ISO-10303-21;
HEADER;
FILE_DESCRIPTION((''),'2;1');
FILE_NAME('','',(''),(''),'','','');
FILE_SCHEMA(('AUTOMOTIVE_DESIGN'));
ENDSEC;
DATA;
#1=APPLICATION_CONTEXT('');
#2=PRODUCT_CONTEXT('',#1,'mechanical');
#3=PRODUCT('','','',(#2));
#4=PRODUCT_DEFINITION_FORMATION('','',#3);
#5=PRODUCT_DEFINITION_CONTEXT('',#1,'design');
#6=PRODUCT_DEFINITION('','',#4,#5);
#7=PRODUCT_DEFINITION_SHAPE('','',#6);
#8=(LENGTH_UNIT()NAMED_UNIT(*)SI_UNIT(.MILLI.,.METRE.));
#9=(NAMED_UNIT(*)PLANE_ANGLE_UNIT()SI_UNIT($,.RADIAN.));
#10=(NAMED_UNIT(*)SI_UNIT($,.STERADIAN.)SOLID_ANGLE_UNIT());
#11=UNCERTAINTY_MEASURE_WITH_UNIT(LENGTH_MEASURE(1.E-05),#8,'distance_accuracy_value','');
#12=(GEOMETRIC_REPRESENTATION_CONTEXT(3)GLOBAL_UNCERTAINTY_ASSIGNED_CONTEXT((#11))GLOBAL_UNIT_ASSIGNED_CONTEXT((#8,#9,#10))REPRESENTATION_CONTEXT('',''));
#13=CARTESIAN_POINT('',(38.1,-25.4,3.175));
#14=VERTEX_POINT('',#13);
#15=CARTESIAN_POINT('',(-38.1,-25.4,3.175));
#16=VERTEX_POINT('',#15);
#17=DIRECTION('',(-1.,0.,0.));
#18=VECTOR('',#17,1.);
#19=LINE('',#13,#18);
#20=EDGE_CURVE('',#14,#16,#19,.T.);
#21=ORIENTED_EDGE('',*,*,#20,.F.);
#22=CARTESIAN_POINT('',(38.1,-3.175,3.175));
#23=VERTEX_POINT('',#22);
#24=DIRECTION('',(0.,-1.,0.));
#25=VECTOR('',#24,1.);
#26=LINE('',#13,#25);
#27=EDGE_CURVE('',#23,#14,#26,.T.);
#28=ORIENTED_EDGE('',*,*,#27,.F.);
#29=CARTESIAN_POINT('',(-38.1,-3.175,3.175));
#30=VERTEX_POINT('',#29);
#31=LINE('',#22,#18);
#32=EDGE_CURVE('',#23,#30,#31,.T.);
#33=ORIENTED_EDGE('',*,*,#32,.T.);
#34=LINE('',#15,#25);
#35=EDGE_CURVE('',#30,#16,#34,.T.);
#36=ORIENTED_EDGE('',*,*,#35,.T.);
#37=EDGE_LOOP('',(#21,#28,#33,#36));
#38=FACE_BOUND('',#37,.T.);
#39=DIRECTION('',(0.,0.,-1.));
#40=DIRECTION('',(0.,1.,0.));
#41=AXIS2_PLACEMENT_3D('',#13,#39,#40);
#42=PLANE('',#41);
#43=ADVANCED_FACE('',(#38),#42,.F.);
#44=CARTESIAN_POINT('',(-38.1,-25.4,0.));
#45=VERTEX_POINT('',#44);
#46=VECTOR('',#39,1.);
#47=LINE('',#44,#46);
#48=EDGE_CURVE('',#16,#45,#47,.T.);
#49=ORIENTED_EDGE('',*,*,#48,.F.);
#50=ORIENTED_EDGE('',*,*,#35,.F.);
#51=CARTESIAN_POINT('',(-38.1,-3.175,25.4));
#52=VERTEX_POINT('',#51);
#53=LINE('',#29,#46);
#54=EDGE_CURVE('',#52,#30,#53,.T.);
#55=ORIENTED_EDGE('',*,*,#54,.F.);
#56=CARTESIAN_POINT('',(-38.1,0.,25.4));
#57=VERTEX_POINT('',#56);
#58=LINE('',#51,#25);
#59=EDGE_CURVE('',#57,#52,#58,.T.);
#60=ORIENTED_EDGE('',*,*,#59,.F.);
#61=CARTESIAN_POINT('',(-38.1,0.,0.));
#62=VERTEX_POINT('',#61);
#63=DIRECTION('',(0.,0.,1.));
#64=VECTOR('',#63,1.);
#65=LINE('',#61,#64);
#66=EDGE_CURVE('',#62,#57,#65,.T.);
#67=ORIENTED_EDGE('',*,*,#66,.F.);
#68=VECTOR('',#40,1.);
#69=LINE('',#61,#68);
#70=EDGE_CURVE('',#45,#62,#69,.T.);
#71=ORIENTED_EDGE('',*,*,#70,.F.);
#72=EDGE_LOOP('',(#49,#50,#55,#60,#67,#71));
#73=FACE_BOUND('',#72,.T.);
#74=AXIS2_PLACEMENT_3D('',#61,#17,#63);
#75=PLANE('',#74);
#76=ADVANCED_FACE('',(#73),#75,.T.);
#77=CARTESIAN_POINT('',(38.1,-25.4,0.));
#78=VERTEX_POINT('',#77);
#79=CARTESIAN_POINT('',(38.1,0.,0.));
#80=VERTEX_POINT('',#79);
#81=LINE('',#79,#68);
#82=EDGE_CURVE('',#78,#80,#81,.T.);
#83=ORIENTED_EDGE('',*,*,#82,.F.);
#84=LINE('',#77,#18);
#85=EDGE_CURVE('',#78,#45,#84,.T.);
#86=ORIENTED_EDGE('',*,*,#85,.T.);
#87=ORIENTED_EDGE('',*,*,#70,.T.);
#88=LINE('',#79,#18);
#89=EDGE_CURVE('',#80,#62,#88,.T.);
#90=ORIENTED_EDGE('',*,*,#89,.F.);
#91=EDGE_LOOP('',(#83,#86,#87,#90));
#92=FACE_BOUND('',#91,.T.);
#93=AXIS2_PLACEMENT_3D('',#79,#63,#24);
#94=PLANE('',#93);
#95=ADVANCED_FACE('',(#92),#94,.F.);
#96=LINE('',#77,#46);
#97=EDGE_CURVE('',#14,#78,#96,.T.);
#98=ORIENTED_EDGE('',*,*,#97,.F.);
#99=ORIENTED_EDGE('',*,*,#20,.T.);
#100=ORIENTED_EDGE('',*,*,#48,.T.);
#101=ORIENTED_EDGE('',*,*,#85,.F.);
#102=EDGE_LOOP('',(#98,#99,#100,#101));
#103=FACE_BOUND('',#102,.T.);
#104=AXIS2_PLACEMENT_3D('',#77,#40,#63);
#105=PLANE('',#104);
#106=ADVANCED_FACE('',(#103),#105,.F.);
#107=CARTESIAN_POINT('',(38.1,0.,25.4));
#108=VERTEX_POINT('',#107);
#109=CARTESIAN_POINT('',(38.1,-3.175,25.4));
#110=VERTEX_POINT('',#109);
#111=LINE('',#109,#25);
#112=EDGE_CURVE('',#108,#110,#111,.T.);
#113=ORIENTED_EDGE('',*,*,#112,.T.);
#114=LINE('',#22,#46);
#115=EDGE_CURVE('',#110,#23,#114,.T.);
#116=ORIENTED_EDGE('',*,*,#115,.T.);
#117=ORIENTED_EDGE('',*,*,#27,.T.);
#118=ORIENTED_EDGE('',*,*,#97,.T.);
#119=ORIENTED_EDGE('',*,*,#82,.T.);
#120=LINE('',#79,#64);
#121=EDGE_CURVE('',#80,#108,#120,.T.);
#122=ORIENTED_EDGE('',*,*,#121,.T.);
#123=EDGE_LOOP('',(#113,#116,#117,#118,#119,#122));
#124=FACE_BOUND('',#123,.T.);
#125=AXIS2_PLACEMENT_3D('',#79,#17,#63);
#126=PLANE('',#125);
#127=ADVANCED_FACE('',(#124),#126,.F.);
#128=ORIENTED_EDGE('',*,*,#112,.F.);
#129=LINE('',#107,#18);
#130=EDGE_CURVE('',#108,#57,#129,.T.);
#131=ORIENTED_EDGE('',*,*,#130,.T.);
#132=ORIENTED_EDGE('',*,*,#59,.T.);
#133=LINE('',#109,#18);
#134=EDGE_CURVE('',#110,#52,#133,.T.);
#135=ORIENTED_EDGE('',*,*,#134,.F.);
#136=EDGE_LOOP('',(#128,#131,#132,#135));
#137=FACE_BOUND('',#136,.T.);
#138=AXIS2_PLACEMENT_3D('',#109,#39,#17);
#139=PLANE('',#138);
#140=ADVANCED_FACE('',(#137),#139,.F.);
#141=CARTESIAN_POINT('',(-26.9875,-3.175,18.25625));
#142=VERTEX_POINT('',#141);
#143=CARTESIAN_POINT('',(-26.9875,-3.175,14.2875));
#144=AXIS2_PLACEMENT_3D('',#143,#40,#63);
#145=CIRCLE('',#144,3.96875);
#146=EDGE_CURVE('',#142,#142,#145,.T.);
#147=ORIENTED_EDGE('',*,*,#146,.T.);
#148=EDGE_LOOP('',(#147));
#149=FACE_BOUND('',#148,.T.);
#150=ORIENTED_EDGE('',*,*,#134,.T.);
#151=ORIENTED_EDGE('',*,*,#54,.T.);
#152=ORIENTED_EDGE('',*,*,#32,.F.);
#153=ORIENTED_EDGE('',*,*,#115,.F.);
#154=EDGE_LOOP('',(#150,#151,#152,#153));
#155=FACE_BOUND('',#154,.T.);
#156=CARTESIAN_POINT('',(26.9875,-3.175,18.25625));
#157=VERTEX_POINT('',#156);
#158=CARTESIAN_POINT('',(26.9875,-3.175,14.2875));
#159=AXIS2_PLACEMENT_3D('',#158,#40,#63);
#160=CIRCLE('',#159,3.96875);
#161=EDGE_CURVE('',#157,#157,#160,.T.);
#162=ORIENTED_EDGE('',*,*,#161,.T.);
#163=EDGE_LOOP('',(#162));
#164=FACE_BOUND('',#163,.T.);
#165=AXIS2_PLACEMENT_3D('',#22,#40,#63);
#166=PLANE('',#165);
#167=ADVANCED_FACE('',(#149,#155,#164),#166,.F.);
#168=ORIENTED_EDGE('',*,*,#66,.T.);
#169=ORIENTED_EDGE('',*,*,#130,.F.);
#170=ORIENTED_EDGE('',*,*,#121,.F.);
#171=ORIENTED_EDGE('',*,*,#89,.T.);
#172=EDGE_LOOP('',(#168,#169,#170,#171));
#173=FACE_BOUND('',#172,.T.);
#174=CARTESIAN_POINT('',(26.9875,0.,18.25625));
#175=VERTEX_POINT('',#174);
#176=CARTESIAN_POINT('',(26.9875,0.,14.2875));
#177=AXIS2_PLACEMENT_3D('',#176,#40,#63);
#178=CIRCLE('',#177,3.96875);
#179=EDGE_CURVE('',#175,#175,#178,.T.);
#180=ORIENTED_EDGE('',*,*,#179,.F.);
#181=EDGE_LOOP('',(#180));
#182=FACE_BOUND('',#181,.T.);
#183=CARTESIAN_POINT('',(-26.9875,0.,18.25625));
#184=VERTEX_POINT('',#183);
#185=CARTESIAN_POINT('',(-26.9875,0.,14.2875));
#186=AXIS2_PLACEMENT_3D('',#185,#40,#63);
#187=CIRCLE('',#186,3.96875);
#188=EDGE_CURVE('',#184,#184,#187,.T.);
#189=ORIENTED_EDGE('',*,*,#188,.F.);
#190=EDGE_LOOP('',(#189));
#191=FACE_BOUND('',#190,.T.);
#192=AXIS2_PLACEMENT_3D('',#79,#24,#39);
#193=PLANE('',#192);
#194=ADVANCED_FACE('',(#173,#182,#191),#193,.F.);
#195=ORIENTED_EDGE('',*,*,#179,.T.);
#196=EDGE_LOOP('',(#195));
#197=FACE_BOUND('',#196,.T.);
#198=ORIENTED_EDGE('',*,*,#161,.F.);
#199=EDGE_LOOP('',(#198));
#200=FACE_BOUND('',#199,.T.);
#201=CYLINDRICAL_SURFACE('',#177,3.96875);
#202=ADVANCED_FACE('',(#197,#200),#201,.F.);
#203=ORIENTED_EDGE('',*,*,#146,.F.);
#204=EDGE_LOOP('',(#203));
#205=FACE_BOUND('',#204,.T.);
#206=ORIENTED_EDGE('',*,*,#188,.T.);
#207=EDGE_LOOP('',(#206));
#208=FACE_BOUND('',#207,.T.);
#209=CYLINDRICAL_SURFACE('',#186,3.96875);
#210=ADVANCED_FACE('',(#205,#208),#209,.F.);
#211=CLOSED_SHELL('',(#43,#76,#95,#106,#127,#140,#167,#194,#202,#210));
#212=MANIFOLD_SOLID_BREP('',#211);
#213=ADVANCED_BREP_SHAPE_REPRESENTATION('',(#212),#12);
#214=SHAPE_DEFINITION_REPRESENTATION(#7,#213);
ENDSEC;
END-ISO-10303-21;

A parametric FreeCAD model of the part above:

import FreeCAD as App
import Part
import Sketcher
from FreeCAD import Vector
Q = App.Units.Quantity

doc = App.newDocument("Part")
body = doc.addObject("PartDesign::Body", "Body")

# Sketch on YZ plane
sketch1 = doc.addObject("Sketcher::SketchObject", "Sketch")
body.addObject(sketch1)
sketch1.AttachmentSupport = (doc.YZ_Plane, [""])
sketch1.MapMode = "FlatFace"
sketch1.addGeometry(Part.LineSegment(Vector(0, 0, 0), Vector(0, 25.4, 0)), False)
sketch1.addGeometry(Part.LineSegment(Vector(0, 25.4, 0), Vector(-3.175, 25.4, 0)), False)
sketch1.addGeometry(Part.LineSegment(Vector(-3.175, 25.4, 0), Vector(-3.175, 3.175, 0)), False)
sketch1.addGeometry(Part.LineSegment(Vector(-3.175, 3.175, 0), Vector(-25.4, 3.175, 0)), False)
sketch1.addGeometry(Part.LineSegment(Vector(-25.4, 3.175, 0), Vector(-25.4, 0, 0)), False)
sketch1.addGeometry(Part.LineSegment(Vector(-25.4, 0, 0), Vector(0, 0, 0)), False)
sketch1.addConstraint(Sketcher.Constraint("Coincident", 0, 2, 1, 1))
sketch1.addConstraint(Sketcher.Constraint("Coincident", 1, 2, 2, 1))
sketch1.addConstraint(Sketcher.Constraint("Coincident", 2, 2, 3, 1))
sketch1.addConstraint(Sketcher.Constraint("Coincident", 3, 2, 4, 1))
sketch1.addConstraint(Sketcher.Constraint("Coincident", 4, 2, 5, 1))
sketch1.addConstraint(Sketcher.Constraint("Coincident", 5, 2, 0, 1))
sketch1.addConstraint(Sketcher.Constraint("Vertical", 0))
sketch1.addConstraint(Sketcher.Constraint("Horizontal", 1))
sketch1.addConstraint(Sketcher.Constraint("Vertical", 2))
sketch1.addConstraint(Sketcher.Constraint("Horizontal", 3))
sketch1.addConstraint(Sketcher.Constraint("Vertical", 4))
sketch1.addConstraint(Sketcher.Constraint("Horizontal", 5))
sketch1.addConstraint(Sketcher.Constraint("Coincident", 5, 2, -1, 1))
sketch1.addConstraint(Sketcher.Constraint("Equal", 5, 0))
sketch1.addConstraint(Sketcher.Constraint("Equal", 3, 2))
sketch1.addConstraint(Sketcher.Constraint("DistanceX", 5, 1, 5, 2, Q("1 in")))
sketch1.addConstraint(Sketcher.Constraint("DistanceX", 1, 2, 1, 1, Q("0.125 in")))
pad1 = doc.addObject("PartDesign::Pad", "Pad")
body.addObject(pad1)
pad1.Profile = sketch1
pad1.Length = Q("3 in")
pad1.Midplane = True

# Sketch on XZ plane
sketch2 = doc.addObject("Sketcher::SketchObject", "Sketch001")
body.addObject(sketch2)
sketch2.AttachmentSupport = (doc.XZ_Plane, [""])
sketch2.MapMode = "FlatFace"
sketch2.addGeometry(Part.Circle(Vector(-26.9875, 14.2875, 0), Vector(0, 0, 1), 3.96875), False)
sketch2.addGeometry(Part.Circle(Vector(26.9875, 14.2875, 0), Vector(0, 0, 1), 3.96875), False)
sketch2.addConstraint(Sketcher.Constraint("Equal", 0, 1))
sketch2.addConstraint(Sketcher.Constraint("Symmetric", 0, 3, 1, 3, -2))
sketch2.addConstraint(Sketcher.Constraint("Diameter", 0, Q("0.3125 in")))
sketch2.addConstraint(Sketcher.Constraint("DistanceX", 0, 3, -1, 1, Q("1.0625 in")))
sketch2.addConstraint(Sketcher.Constraint("DistanceY", -1, 1, 0, 3, Q("0.5625 in")))
doc.recompute()
hole = doc.addObject("PartDesign::Hole", "Hole")
body.addObject(hole)
hole.Profile = sketch2
hole.ThreadType = "None"
hole.Diameter = Q("0.3125 in")
hole.DepthType = "Dimension"
hole.Depth = Q("0.125 in")
hole.DrillPoint = "Flat"
hole.Reversed = True

doc.recompute()
